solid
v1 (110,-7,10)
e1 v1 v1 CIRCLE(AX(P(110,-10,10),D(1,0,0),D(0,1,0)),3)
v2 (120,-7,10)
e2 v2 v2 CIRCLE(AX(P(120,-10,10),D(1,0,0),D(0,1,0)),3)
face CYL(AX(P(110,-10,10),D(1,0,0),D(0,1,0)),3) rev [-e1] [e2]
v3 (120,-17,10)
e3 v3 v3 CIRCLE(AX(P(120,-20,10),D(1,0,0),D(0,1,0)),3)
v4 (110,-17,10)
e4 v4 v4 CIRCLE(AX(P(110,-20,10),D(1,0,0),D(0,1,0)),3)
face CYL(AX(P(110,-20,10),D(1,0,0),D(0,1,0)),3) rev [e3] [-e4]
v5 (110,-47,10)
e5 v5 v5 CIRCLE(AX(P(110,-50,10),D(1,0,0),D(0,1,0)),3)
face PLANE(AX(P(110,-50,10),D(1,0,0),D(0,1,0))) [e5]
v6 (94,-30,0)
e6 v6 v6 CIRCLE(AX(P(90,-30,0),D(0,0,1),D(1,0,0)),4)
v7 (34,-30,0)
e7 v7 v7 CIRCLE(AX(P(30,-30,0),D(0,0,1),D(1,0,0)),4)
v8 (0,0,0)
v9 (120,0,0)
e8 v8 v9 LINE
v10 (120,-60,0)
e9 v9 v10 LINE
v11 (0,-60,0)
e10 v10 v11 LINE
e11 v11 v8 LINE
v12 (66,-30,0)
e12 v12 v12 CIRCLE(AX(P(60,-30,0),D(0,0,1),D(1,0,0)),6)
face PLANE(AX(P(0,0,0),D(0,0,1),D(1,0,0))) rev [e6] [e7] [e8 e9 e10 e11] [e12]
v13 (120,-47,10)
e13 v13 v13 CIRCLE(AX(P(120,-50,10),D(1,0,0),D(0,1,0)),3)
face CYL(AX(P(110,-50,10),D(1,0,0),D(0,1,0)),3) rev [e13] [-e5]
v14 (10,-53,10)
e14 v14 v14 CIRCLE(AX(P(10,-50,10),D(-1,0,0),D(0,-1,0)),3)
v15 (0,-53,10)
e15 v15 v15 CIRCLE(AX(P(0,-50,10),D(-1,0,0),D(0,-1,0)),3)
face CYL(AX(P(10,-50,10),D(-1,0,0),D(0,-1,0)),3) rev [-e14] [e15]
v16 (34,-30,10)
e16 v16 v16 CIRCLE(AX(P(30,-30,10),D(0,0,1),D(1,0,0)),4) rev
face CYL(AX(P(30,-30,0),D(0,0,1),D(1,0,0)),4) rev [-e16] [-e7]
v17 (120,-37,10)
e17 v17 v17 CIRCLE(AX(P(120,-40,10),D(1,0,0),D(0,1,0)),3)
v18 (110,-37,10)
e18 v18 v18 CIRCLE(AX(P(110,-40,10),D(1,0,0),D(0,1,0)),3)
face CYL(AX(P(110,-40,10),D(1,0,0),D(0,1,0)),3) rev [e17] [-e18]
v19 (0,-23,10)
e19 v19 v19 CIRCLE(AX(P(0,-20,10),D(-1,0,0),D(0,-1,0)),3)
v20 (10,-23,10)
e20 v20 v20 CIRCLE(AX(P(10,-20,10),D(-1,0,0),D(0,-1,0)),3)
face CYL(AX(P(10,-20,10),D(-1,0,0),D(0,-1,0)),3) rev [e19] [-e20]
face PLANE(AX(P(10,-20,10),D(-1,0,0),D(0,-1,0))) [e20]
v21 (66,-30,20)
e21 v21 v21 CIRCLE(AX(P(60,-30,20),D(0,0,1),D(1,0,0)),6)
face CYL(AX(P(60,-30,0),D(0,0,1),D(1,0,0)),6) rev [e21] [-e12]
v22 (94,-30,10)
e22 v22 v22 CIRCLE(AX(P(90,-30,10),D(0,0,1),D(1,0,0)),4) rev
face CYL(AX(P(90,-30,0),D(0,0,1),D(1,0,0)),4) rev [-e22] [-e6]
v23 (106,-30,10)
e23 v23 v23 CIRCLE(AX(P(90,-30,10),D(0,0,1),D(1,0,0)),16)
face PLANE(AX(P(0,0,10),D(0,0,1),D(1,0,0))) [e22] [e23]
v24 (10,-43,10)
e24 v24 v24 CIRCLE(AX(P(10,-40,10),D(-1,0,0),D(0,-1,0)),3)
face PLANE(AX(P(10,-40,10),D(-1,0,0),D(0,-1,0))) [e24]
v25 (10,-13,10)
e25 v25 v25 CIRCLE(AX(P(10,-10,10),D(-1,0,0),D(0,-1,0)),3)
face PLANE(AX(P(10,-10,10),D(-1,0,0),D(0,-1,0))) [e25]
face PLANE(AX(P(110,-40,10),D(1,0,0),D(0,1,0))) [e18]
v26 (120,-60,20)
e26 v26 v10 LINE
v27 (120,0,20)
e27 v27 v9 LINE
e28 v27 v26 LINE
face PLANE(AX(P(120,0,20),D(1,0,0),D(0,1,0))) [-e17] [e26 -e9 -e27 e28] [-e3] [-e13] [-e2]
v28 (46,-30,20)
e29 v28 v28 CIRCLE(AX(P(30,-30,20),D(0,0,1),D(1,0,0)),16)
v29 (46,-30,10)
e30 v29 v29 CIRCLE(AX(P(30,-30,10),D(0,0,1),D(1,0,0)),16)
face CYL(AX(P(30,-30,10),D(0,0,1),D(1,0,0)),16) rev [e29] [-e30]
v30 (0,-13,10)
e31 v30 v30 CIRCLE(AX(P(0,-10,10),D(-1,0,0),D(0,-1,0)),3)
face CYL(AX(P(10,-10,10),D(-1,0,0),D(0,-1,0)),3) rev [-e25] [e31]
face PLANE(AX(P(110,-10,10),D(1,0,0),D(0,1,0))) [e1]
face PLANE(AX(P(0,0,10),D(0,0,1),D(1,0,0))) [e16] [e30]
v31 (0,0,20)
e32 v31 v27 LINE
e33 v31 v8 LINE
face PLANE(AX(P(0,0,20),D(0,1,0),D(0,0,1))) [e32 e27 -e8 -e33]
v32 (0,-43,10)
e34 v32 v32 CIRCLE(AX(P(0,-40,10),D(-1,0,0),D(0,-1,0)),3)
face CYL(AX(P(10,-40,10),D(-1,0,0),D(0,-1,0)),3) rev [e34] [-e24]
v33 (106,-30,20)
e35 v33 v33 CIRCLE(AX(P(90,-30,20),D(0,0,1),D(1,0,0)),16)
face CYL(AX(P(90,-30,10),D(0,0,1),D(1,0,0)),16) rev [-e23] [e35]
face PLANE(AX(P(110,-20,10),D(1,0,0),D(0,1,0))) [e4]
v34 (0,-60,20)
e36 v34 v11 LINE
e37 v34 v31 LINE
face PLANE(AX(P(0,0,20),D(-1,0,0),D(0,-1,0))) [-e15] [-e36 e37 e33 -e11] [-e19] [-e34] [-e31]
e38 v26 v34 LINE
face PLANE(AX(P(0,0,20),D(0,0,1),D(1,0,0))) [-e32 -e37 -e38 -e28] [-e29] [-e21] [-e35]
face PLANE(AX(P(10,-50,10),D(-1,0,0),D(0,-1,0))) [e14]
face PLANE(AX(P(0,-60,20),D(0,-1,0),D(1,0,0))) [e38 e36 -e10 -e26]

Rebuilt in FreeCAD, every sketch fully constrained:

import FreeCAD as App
import Part
import Sketcher

V = App.Vector


def add_polygon(sketch, points):
    """Adds a closed chain of lines whose ends are joined by coincident constraints."""
    first, n = sketch.GeometryCount, len(points)
    for a, b in zip(points, points[1:] + points[:1]):
        sketch.addGeometry(Part.LineSegment(App.Vector(*a, 0), App.Vector(*b, 0)), False)
    for i in range(n):
        sketch.addConstraint(Sketcher.Constraint("Coincident", first + i, 2, first + (i + 1) % n, 1))

doc = App.newDocument("Part")
params = doc.addObject("Spreadsheet::Sheet", "Params")
for row, (alias, value) in enumerate([
    ("sketch1_width", "120 mm"),
    ("sketch1_height", "60 mm"),
    ("pad1_length", "20 mm"),
    ("sketch2_diameter", "8 mm"),
    ("sketch2_diameter2", "12 mm"),
    ("pocket1_length", "20 mm"),
    ("sketch3_diameter", "32 mm"),
    ("sketch3_diameter2", "8 mm"),
    ("pocket2_length", "10 mm"),
    ("sketch4_diameter", "6 mm"),
    ("pocket3_length", "10 mm"),
    ("sketch5_diameter", "6 mm"),
    ("pocket4_length", "10 mm"),
], start=1):
    params.set(f"A{row}", alias)
    params.set(f"B{row}", "=" + value)
    params.setAlias(f"B{row}", alias)

body = doc.addObject("PartDesign::Body", "Body")

sketch1 = body.newObject("Sketcher::SketchObject", "Sketch")
sketch1.AttachmentSupport = (doc.getObject("XY_Plane"), [""])
sketch1.MapMode = "FlatFace"
add_polygon(sketch1, [(0, 0), (0, -60), (120, -60), (120, 0)])
sketch1.addConstraint(Sketcher.Constraint("Vertical", 0))
sketch1.addConstraint(Sketcher.Constraint("Horizontal", 1))
sketch1.addConstraint(Sketcher.Constraint("Vertical", 2))
sketch1.addConstraint(Sketcher.Constraint("Horizontal", 3))
sketch1.addConstraint(Sketcher.Constraint("Coincident", 3, 2, -1, 1))
sketch1.addConstraint(Sketcher.Constraint("DistanceX", 1, 1, 1, 2, 120.0))
sketch1.addConstraint(Sketcher.Constraint("DistanceY", 0, 2, 0, 1, 60.0))
sketch1.setExpression("Constraints[9]", "Params.sketch1_width")
sketch1.setExpression("Constraints[10]", "Params.sketch1_height")
pad1 = body.newObject("PartDesign::Pad", "Pad")
pad1.Profile = sketch1
pad1.setExpression("Length", "Params.pad1_length")

sketch2 = body.newObject("Sketcher::SketchObject", "Sketch001")
sketch2.AttachmentSupport = (doc.getObject("XY_Plane"), [""])
sketch2.MapMode = "FlatFace"
sketch2.AttachmentOffset = App.Placement(V(0, 0, 20), App.Rotation())
sketch2.addGeometry(Part.Circle(V(30, -30, 0), V(0, 0, 1), 4), False)
sketch2.addGeometry(Part.Circle(V(60, -30, 0), V(0, 0, 1), 6), False)
sketch2.addGeometry(Part.Circle(V(90, -30, 0), V(0, 0, 1), 4), False)
sketch2.addConstraint(Sketcher.Constraint("Equal", 0, 2))
sketch2.addConstraint(Sketcher.Constraint("Horizontal", 0, 3, 1, 3))
sketch2.addConstraint(Sketcher.Constraint("Horizontal", 1, 3, 2, 3))
sketch2.addConstraint(Sketcher.Constraint("Diameter", 0, 8.0))
sketch2.addConstraint(Sketcher.Constraint("Diameter", 1, 12.0))
sketch2.addConstraint(Sketcher.Constraint("DistanceX", -1, 1, 0, 3, 30.0))
sketch2.addConstraint(Sketcher.Constraint("DistanceY", 0, 3, -1, 1, 30.0))
sketch2.addConstraint(Sketcher.Constraint("DistanceX", -1, 1, 1, 3, 60.0))
sketch2.addConstraint(Sketcher.Constraint("DistanceX", -1, 1, 2, 3, 90.0))
sketch2.setExpression("Constraints[3]", "Params.sketch2_diameter")
sketch2.setExpression("Constraints[4]", "Params.sketch2_diameter2")
pocket1 = body.newObject("PartDesign::Pocket", "Pocket")
pocket1.Profile = sketch2
pocket1.setExpression("Length", "Params.pocket1_length")

sketch3 = body.newObject("Sketcher::SketchObject", "Sketch002")
sketch3.AttachmentSupport = (doc.getObject("XY_Plane"), [""])
sketch3.MapMode = "FlatFace"
sketch3.AttachmentOffset = App.Placement(V(0, 0, 20), App.Rotation())
sketch3.addGeometry(Part.Circle(V(30, -30, 0), V(0, 0, 1), 16), False)
sketch3.addGeometry(Part.Circle(V(30, -30, 0), V(0, 0, 1), 4), False)
sketch3.addGeometry(Part.Circle(V(90, -30, 0), V(0, 0, 1), 16), False)
sketch3.addGeometry(Part.Circle(V(90, -30, 0), V(0, 0, 1), 4), False)
sketch3.addConstraint(Sketcher.Constraint("Coincident", 1, 3, 0, 3))
sketch3.addConstraint(Sketcher.Constraint("Coincident", 3, 3, 2, 3))
sketch3.addConstraint(Sketcher.Constraint("Equal", 0, 2))
sketch3.addConstraint(Sketcher.Constraint("Equal", 1, 3))
sketch3.addConstraint(Sketcher.Constraint("Horizontal", 1, 3, 2, 3))
sketch3.addConstraint(Sketcher.Constraint("Diameter", 0, 32.0))
sketch3.addConstraint(Sketcher.Constraint("Diameter", 1, 8.0))
sketch3.addConstraint(Sketcher.Constraint("DistanceX", -1, 1, 0, 3, 30.0))
sketch3.addConstraint(Sketcher.Constraint("DistanceY", 0, 3, -1, 1, 30.0))
sketch3.addConstraint(Sketcher.Constraint("DistanceX", -1, 1, 2, 3, 90.0))
sketch3.setExpression("Constraints[5]", "Params.sketch3_diameter")
sketch3.setExpression("Constraints[6]", "Params.sketch3_diameter2")
pocket2 = body.newObject("PartDesign::Pocket", "Pocket001")
pocket2.Profile = sketch3
pocket2.setExpression("Length", "Params.pocket2_length")

sketch4 = body.newObject("Sketcher::SketchObject", "Sketch003")
sketch4.AttachmentSupport = (doc.getObject("YZ_Plane"), [""])
sketch4.MapMode = "FlatFace"
sketch4.AttachmentOffset = App.Placement(V(0, 0, 120), App.Rotation())
sketch4.addGeometry(Part.Circle(V(-10, 10, 0), V(0, 0, 1), 3), False)
sketch4.addGeometry(Part.Circle(V(-20, 10, 0), V(0, 0, 1), 3), False)
sketch4.addGeometry(Part.Circle(V(-40, 10, 0), V(0, 0, 1), 3), False)
sketch4.addGeometry(Part.Circle(V(-50, 10, 0), V(0, 0, 1), 3), False)
sketch4.addConstraint(Sketcher.Constraint("Equal", 0, 1))
sketch4.addConstraint(Sketcher.Constraint("Equal", 1, 2))
sketch4.addConstraint(Sketcher.Constraint("Equal", 2, 3))
sketch4.addConstraint(Sketcher.Constraint("Horizontal", 0, 3, 1, 3))
sketch4.addConstraint(Sketcher.Constraint("Horizontal", 1, 3, 2, 3))
sketch4.addConstraint(Sketcher.Constraint("Horizontal", 2, 3, 3, 3))
sketch4.addConstraint(Sketcher.Constraint("Diameter", 0, 6.0))
sketch4.addConstraint(Sketcher.Constraint("DistanceX", 0, 3, -1, 1, 10.0))
sketch4.addConstraint(Sketcher.Constraint("DistanceY", -1, 1, 0, 3, 10.0))
sketch4.addConstraint(Sketcher.Constraint("DistanceX", 1, 3, -1, 1, 20.0))
sketch4.addConstraint(Sketcher.Constraint("DistanceX", 2, 3, -1, 1, 40.0))
sketch4.addConstraint(Sketcher.Constraint("DistanceX", 3, 3, -1, 1, 50.0))
sketch4.setExpression("Constraints[6]", "Params.sketch4_diameter")
pocket3 = body.newObject("PartDesign::Pocket", "Pocket002")
pocket3.Profile = sketch4
pocket3.setExpression("Length", "Params.pocket3_length")

sketch5 = body.newObject("Sketcher::SketchObject", "Sketch004")
sketch5.AttachmentSupport = (doc.getObject("YZ_Plane"), [""])
sketch5.MapMode = "FlatFace"
sketch5.AttachmentOffset = App.Placement(V(0, 0, 10), App.Rotation())
sketch5.addGeometry(Part.Circle(V(-10, 10, 0), V(0, 0, 1), 3), False)
sketch5.addGeometry(Part.Circle(V(-20, 10, 0), V(0, 0, 1), 3), False)
sketch5.addGeometry(Part.Circle(V(-40, 10, 0), V(0, 0, 1), 3), False)
sketch5.addGeometry(Part.Circle(V(-50, 10, 0), V(0, 0, 1), 3), False)
sketch5.addConstraint(Sketcher.Constraint("Equal", 0, 1))
sketch5.addConstraint(Sketcher.Constraint("Equal", 1, 2))
sketch5.addConstraint(Sketcher.Constraint("Equal", 2, 3))
sketch5.addConstraint(Sketcher.Constraint("Horizontal", 0, 3, 1, 3))
sketch5.addConstraint(Sketcher.Constraint("Horizontal", 1, 3, 2, 3))
sketch5.addConstraint(Sketcher.Constraint("Horizontal", 2, 3, 3, 3))
sketch5.addConstraint(Sketcher.Constraint("Diameter", 0, 6.0))
sketch5.addConstraint(Sketcher.Constraint("DistanceX", 0, 3, -1, 1, 10.0))
sketch5.addConstraint(Sketcher.Constraint("DistanceY", -1, 1, 0, 3, 10.0))
sketch5.addConstraint(Sketcher.Constraint("DistanceX", 1, 3, -1, 1, 20.0))
sketch5.addConstraint(Sketcher.Constraint("DistanceX", 2, 3, -1, 1, 40.0))
sketch5.addConstraint(Sketcher.Constraint("DistanceX", 3, 3, -1, 1, 50.0))
sketch5.setExpression("Constraints[6]", "Params.sketch5_diameter")
pocket4 = body.newObject("PartDesign::Pocket", "Pocket003")
pocket4.Profile = sketch5
pocket4.setExpression("Length", "Params.pocket4_length")

doc.recompute()
